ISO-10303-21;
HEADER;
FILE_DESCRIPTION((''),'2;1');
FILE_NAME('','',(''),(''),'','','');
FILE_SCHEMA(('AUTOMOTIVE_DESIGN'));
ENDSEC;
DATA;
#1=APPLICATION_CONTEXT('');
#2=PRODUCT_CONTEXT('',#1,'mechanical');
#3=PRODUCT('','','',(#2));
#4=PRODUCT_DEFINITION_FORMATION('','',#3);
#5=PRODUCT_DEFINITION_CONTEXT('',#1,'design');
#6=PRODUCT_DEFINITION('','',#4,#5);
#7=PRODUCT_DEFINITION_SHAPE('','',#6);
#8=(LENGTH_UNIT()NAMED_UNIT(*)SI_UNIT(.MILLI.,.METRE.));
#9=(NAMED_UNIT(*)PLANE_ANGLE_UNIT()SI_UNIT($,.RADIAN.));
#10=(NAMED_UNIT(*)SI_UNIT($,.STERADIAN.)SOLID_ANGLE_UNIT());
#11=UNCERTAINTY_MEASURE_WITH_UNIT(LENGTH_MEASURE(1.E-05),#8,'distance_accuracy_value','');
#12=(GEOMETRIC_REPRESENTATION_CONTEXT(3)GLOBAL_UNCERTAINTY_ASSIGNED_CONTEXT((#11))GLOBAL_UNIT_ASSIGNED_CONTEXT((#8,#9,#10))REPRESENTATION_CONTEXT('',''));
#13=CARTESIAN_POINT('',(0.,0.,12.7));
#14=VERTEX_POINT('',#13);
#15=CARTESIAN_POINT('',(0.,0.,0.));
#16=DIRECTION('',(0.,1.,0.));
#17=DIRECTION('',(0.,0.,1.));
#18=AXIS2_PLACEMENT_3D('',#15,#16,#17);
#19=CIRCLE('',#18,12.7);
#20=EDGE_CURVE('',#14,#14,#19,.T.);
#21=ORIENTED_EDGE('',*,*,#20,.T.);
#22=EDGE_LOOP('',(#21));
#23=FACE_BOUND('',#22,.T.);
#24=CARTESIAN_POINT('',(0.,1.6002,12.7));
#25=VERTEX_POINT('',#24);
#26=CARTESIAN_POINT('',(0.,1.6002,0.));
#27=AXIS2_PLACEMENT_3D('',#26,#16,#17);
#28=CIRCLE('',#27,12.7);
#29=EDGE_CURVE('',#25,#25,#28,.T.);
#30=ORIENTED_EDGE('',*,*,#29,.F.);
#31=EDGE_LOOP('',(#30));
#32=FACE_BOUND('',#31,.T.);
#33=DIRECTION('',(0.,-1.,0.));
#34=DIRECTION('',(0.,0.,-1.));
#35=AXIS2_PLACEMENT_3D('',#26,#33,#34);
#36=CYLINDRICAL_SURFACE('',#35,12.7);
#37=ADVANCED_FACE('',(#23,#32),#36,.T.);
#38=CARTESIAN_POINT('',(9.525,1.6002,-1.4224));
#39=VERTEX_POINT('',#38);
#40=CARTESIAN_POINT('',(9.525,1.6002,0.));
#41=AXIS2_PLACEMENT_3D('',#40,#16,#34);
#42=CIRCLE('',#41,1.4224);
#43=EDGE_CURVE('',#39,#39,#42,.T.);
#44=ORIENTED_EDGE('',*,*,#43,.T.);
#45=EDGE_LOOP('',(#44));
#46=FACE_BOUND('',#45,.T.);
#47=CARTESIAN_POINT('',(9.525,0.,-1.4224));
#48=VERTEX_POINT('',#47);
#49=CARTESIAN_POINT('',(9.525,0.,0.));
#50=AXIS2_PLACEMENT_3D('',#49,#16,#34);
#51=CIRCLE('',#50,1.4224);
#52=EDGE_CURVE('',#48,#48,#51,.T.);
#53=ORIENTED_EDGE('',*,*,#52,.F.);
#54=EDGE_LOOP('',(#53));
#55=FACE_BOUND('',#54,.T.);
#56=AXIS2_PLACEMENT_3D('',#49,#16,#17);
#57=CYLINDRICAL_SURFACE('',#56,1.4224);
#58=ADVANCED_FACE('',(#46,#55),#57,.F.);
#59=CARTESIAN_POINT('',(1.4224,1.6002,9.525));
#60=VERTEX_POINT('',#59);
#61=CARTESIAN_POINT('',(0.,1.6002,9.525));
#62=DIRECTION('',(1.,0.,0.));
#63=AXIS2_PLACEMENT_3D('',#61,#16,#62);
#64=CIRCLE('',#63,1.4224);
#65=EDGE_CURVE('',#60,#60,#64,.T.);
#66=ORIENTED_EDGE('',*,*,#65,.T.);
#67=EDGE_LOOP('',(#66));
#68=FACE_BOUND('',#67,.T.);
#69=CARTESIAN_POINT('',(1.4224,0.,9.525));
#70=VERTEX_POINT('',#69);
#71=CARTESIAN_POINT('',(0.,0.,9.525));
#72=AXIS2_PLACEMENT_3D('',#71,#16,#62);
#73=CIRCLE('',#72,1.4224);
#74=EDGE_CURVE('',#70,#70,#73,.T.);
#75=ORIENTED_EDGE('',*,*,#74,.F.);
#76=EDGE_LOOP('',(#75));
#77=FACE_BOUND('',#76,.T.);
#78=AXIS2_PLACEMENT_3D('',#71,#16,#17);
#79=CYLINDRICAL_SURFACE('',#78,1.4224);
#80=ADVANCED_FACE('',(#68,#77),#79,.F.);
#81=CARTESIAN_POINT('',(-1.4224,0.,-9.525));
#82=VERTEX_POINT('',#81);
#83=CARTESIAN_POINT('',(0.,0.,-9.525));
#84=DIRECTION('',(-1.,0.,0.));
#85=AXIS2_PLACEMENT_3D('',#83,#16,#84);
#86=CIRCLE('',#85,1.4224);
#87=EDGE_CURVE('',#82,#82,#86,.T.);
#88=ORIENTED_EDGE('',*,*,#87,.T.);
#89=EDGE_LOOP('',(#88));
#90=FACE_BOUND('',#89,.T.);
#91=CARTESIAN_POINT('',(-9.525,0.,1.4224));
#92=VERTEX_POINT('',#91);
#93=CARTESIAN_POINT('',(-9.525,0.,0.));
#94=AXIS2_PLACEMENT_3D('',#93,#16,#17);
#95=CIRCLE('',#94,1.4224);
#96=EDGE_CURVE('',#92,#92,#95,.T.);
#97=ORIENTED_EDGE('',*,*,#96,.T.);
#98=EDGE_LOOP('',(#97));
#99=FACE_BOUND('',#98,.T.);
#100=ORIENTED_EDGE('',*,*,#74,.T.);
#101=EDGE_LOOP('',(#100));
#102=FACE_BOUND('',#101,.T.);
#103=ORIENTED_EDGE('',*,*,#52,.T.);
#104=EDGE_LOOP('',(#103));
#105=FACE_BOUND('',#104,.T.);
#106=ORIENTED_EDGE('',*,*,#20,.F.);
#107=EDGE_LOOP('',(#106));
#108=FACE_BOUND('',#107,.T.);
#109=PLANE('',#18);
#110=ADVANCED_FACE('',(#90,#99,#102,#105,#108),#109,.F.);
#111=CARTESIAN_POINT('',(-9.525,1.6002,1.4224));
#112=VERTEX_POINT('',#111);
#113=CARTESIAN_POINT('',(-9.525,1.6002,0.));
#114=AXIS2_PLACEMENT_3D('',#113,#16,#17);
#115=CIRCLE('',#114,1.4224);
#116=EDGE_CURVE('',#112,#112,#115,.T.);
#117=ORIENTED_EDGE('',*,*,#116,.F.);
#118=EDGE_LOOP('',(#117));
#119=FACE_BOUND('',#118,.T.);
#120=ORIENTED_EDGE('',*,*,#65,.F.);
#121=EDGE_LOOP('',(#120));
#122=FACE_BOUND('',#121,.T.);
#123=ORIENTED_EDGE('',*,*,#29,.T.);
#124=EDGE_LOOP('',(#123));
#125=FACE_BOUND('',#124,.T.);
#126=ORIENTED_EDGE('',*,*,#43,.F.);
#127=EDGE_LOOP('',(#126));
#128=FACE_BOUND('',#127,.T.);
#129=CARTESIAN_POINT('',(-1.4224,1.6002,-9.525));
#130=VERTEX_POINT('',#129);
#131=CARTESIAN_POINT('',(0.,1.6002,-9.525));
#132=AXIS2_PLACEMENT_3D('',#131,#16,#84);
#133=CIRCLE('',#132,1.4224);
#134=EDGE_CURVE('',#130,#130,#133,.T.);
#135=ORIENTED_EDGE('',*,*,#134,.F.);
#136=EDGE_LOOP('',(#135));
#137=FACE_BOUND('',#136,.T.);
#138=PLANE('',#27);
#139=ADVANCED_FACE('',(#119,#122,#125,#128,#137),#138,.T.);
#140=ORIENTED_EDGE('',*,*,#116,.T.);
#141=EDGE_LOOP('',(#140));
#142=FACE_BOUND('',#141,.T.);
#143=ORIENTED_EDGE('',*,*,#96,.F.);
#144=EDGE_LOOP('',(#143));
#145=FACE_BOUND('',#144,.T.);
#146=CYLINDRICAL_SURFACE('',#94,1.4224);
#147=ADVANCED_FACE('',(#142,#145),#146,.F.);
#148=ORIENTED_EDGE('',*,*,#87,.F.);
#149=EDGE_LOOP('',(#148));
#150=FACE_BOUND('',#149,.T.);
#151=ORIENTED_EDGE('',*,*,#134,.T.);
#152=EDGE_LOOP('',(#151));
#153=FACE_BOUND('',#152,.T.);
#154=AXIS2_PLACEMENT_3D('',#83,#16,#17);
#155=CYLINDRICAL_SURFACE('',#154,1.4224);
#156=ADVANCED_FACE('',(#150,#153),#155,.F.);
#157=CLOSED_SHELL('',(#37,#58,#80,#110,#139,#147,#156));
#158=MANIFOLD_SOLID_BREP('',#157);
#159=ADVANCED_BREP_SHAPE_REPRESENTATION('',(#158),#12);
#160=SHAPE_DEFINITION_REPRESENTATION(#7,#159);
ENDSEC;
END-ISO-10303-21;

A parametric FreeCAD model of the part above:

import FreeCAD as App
import Part
import Sketcher
Q = App.Units.Quantity

doc = App.newDocument("Part")
body = doc.addObject("PartDesign::Body", "Body")

# Sketch on XZ plane
sketch1 = doc.addObject("Sketcher::SketchObject", "Sketch")
body.addObject(sketch1)
sketch1.AttachmentSupport = (doc.XZ_Plane, [""])
sketch1.MapMode = "FlatFace"
sketch1.addGeometry(Part.Circle(App.Vector(0, 0, 0), App.Vector(0, 0, 1), 13), False)
sketch1.addConstraint(Sketcher.Constraint("Coincident", 0, 3, -1, 1))
sketch1.addConstraint(Sketcher.Constraint("Diameter", 0, Q("1 in")))
pad1 = doc.addObject("PartDesign::Pad", "Pad")
body.addObject(pad1)
pad1.Profile = sketch1
pad1.Length = Q("0.063 in")
pad1.Reversed = True

# Sketch on XZ plane
sketch2 = doc.addObject("Sketcher::SketchObject", "Sketch001")
body.addObject(sketch2)
sketch2.AttachmentSupport = (doc.XZ_Plane, [""])
sketch2.MapMode = "FlatFace"
sketch2.AttachmentOffset = App.Placement(App.Vector(0, 0, -0.063 * 25.4), App.Rotation())
sketch2.addGeometry(Part.Circle(App.Vector(-9.5, 0, 0), App.Vector(0, 0, 1), 1.4), False)
sketch2.addConstraint(Sketcher.Constraint("PointOnObject", 0, 3, -1))
sketch2.addConstraint(Sketcher.Constraint("Diameter", 0, Q("0.112 in")))
sketch2.addConstraint(Sketcher.Constraint("DistanceX", 0, 3, -1, 1, Q("0.375 in")))
pocket1 = doc.addObject("PartDesign::Pocket", "Pocket")
body.addObject(pocket1)
pocket1.Profile = sketch2
pocket1.Length = Q("0.063 in")
pocket1.Reversed = True
doc.recompute()

polarpattern = doc.addObject("PartDesign::PolarPattern", "PolarPattern")
body.addObject(polarpattern)
polarpattern.Originals = [pocket1]
polarpattern.Axis = (doc.Y_Axis, [""])
polarpattern.Angle = 360
polarpattern.Occurrences = 4
body.Tip = polarpattern

doc.recompute()
